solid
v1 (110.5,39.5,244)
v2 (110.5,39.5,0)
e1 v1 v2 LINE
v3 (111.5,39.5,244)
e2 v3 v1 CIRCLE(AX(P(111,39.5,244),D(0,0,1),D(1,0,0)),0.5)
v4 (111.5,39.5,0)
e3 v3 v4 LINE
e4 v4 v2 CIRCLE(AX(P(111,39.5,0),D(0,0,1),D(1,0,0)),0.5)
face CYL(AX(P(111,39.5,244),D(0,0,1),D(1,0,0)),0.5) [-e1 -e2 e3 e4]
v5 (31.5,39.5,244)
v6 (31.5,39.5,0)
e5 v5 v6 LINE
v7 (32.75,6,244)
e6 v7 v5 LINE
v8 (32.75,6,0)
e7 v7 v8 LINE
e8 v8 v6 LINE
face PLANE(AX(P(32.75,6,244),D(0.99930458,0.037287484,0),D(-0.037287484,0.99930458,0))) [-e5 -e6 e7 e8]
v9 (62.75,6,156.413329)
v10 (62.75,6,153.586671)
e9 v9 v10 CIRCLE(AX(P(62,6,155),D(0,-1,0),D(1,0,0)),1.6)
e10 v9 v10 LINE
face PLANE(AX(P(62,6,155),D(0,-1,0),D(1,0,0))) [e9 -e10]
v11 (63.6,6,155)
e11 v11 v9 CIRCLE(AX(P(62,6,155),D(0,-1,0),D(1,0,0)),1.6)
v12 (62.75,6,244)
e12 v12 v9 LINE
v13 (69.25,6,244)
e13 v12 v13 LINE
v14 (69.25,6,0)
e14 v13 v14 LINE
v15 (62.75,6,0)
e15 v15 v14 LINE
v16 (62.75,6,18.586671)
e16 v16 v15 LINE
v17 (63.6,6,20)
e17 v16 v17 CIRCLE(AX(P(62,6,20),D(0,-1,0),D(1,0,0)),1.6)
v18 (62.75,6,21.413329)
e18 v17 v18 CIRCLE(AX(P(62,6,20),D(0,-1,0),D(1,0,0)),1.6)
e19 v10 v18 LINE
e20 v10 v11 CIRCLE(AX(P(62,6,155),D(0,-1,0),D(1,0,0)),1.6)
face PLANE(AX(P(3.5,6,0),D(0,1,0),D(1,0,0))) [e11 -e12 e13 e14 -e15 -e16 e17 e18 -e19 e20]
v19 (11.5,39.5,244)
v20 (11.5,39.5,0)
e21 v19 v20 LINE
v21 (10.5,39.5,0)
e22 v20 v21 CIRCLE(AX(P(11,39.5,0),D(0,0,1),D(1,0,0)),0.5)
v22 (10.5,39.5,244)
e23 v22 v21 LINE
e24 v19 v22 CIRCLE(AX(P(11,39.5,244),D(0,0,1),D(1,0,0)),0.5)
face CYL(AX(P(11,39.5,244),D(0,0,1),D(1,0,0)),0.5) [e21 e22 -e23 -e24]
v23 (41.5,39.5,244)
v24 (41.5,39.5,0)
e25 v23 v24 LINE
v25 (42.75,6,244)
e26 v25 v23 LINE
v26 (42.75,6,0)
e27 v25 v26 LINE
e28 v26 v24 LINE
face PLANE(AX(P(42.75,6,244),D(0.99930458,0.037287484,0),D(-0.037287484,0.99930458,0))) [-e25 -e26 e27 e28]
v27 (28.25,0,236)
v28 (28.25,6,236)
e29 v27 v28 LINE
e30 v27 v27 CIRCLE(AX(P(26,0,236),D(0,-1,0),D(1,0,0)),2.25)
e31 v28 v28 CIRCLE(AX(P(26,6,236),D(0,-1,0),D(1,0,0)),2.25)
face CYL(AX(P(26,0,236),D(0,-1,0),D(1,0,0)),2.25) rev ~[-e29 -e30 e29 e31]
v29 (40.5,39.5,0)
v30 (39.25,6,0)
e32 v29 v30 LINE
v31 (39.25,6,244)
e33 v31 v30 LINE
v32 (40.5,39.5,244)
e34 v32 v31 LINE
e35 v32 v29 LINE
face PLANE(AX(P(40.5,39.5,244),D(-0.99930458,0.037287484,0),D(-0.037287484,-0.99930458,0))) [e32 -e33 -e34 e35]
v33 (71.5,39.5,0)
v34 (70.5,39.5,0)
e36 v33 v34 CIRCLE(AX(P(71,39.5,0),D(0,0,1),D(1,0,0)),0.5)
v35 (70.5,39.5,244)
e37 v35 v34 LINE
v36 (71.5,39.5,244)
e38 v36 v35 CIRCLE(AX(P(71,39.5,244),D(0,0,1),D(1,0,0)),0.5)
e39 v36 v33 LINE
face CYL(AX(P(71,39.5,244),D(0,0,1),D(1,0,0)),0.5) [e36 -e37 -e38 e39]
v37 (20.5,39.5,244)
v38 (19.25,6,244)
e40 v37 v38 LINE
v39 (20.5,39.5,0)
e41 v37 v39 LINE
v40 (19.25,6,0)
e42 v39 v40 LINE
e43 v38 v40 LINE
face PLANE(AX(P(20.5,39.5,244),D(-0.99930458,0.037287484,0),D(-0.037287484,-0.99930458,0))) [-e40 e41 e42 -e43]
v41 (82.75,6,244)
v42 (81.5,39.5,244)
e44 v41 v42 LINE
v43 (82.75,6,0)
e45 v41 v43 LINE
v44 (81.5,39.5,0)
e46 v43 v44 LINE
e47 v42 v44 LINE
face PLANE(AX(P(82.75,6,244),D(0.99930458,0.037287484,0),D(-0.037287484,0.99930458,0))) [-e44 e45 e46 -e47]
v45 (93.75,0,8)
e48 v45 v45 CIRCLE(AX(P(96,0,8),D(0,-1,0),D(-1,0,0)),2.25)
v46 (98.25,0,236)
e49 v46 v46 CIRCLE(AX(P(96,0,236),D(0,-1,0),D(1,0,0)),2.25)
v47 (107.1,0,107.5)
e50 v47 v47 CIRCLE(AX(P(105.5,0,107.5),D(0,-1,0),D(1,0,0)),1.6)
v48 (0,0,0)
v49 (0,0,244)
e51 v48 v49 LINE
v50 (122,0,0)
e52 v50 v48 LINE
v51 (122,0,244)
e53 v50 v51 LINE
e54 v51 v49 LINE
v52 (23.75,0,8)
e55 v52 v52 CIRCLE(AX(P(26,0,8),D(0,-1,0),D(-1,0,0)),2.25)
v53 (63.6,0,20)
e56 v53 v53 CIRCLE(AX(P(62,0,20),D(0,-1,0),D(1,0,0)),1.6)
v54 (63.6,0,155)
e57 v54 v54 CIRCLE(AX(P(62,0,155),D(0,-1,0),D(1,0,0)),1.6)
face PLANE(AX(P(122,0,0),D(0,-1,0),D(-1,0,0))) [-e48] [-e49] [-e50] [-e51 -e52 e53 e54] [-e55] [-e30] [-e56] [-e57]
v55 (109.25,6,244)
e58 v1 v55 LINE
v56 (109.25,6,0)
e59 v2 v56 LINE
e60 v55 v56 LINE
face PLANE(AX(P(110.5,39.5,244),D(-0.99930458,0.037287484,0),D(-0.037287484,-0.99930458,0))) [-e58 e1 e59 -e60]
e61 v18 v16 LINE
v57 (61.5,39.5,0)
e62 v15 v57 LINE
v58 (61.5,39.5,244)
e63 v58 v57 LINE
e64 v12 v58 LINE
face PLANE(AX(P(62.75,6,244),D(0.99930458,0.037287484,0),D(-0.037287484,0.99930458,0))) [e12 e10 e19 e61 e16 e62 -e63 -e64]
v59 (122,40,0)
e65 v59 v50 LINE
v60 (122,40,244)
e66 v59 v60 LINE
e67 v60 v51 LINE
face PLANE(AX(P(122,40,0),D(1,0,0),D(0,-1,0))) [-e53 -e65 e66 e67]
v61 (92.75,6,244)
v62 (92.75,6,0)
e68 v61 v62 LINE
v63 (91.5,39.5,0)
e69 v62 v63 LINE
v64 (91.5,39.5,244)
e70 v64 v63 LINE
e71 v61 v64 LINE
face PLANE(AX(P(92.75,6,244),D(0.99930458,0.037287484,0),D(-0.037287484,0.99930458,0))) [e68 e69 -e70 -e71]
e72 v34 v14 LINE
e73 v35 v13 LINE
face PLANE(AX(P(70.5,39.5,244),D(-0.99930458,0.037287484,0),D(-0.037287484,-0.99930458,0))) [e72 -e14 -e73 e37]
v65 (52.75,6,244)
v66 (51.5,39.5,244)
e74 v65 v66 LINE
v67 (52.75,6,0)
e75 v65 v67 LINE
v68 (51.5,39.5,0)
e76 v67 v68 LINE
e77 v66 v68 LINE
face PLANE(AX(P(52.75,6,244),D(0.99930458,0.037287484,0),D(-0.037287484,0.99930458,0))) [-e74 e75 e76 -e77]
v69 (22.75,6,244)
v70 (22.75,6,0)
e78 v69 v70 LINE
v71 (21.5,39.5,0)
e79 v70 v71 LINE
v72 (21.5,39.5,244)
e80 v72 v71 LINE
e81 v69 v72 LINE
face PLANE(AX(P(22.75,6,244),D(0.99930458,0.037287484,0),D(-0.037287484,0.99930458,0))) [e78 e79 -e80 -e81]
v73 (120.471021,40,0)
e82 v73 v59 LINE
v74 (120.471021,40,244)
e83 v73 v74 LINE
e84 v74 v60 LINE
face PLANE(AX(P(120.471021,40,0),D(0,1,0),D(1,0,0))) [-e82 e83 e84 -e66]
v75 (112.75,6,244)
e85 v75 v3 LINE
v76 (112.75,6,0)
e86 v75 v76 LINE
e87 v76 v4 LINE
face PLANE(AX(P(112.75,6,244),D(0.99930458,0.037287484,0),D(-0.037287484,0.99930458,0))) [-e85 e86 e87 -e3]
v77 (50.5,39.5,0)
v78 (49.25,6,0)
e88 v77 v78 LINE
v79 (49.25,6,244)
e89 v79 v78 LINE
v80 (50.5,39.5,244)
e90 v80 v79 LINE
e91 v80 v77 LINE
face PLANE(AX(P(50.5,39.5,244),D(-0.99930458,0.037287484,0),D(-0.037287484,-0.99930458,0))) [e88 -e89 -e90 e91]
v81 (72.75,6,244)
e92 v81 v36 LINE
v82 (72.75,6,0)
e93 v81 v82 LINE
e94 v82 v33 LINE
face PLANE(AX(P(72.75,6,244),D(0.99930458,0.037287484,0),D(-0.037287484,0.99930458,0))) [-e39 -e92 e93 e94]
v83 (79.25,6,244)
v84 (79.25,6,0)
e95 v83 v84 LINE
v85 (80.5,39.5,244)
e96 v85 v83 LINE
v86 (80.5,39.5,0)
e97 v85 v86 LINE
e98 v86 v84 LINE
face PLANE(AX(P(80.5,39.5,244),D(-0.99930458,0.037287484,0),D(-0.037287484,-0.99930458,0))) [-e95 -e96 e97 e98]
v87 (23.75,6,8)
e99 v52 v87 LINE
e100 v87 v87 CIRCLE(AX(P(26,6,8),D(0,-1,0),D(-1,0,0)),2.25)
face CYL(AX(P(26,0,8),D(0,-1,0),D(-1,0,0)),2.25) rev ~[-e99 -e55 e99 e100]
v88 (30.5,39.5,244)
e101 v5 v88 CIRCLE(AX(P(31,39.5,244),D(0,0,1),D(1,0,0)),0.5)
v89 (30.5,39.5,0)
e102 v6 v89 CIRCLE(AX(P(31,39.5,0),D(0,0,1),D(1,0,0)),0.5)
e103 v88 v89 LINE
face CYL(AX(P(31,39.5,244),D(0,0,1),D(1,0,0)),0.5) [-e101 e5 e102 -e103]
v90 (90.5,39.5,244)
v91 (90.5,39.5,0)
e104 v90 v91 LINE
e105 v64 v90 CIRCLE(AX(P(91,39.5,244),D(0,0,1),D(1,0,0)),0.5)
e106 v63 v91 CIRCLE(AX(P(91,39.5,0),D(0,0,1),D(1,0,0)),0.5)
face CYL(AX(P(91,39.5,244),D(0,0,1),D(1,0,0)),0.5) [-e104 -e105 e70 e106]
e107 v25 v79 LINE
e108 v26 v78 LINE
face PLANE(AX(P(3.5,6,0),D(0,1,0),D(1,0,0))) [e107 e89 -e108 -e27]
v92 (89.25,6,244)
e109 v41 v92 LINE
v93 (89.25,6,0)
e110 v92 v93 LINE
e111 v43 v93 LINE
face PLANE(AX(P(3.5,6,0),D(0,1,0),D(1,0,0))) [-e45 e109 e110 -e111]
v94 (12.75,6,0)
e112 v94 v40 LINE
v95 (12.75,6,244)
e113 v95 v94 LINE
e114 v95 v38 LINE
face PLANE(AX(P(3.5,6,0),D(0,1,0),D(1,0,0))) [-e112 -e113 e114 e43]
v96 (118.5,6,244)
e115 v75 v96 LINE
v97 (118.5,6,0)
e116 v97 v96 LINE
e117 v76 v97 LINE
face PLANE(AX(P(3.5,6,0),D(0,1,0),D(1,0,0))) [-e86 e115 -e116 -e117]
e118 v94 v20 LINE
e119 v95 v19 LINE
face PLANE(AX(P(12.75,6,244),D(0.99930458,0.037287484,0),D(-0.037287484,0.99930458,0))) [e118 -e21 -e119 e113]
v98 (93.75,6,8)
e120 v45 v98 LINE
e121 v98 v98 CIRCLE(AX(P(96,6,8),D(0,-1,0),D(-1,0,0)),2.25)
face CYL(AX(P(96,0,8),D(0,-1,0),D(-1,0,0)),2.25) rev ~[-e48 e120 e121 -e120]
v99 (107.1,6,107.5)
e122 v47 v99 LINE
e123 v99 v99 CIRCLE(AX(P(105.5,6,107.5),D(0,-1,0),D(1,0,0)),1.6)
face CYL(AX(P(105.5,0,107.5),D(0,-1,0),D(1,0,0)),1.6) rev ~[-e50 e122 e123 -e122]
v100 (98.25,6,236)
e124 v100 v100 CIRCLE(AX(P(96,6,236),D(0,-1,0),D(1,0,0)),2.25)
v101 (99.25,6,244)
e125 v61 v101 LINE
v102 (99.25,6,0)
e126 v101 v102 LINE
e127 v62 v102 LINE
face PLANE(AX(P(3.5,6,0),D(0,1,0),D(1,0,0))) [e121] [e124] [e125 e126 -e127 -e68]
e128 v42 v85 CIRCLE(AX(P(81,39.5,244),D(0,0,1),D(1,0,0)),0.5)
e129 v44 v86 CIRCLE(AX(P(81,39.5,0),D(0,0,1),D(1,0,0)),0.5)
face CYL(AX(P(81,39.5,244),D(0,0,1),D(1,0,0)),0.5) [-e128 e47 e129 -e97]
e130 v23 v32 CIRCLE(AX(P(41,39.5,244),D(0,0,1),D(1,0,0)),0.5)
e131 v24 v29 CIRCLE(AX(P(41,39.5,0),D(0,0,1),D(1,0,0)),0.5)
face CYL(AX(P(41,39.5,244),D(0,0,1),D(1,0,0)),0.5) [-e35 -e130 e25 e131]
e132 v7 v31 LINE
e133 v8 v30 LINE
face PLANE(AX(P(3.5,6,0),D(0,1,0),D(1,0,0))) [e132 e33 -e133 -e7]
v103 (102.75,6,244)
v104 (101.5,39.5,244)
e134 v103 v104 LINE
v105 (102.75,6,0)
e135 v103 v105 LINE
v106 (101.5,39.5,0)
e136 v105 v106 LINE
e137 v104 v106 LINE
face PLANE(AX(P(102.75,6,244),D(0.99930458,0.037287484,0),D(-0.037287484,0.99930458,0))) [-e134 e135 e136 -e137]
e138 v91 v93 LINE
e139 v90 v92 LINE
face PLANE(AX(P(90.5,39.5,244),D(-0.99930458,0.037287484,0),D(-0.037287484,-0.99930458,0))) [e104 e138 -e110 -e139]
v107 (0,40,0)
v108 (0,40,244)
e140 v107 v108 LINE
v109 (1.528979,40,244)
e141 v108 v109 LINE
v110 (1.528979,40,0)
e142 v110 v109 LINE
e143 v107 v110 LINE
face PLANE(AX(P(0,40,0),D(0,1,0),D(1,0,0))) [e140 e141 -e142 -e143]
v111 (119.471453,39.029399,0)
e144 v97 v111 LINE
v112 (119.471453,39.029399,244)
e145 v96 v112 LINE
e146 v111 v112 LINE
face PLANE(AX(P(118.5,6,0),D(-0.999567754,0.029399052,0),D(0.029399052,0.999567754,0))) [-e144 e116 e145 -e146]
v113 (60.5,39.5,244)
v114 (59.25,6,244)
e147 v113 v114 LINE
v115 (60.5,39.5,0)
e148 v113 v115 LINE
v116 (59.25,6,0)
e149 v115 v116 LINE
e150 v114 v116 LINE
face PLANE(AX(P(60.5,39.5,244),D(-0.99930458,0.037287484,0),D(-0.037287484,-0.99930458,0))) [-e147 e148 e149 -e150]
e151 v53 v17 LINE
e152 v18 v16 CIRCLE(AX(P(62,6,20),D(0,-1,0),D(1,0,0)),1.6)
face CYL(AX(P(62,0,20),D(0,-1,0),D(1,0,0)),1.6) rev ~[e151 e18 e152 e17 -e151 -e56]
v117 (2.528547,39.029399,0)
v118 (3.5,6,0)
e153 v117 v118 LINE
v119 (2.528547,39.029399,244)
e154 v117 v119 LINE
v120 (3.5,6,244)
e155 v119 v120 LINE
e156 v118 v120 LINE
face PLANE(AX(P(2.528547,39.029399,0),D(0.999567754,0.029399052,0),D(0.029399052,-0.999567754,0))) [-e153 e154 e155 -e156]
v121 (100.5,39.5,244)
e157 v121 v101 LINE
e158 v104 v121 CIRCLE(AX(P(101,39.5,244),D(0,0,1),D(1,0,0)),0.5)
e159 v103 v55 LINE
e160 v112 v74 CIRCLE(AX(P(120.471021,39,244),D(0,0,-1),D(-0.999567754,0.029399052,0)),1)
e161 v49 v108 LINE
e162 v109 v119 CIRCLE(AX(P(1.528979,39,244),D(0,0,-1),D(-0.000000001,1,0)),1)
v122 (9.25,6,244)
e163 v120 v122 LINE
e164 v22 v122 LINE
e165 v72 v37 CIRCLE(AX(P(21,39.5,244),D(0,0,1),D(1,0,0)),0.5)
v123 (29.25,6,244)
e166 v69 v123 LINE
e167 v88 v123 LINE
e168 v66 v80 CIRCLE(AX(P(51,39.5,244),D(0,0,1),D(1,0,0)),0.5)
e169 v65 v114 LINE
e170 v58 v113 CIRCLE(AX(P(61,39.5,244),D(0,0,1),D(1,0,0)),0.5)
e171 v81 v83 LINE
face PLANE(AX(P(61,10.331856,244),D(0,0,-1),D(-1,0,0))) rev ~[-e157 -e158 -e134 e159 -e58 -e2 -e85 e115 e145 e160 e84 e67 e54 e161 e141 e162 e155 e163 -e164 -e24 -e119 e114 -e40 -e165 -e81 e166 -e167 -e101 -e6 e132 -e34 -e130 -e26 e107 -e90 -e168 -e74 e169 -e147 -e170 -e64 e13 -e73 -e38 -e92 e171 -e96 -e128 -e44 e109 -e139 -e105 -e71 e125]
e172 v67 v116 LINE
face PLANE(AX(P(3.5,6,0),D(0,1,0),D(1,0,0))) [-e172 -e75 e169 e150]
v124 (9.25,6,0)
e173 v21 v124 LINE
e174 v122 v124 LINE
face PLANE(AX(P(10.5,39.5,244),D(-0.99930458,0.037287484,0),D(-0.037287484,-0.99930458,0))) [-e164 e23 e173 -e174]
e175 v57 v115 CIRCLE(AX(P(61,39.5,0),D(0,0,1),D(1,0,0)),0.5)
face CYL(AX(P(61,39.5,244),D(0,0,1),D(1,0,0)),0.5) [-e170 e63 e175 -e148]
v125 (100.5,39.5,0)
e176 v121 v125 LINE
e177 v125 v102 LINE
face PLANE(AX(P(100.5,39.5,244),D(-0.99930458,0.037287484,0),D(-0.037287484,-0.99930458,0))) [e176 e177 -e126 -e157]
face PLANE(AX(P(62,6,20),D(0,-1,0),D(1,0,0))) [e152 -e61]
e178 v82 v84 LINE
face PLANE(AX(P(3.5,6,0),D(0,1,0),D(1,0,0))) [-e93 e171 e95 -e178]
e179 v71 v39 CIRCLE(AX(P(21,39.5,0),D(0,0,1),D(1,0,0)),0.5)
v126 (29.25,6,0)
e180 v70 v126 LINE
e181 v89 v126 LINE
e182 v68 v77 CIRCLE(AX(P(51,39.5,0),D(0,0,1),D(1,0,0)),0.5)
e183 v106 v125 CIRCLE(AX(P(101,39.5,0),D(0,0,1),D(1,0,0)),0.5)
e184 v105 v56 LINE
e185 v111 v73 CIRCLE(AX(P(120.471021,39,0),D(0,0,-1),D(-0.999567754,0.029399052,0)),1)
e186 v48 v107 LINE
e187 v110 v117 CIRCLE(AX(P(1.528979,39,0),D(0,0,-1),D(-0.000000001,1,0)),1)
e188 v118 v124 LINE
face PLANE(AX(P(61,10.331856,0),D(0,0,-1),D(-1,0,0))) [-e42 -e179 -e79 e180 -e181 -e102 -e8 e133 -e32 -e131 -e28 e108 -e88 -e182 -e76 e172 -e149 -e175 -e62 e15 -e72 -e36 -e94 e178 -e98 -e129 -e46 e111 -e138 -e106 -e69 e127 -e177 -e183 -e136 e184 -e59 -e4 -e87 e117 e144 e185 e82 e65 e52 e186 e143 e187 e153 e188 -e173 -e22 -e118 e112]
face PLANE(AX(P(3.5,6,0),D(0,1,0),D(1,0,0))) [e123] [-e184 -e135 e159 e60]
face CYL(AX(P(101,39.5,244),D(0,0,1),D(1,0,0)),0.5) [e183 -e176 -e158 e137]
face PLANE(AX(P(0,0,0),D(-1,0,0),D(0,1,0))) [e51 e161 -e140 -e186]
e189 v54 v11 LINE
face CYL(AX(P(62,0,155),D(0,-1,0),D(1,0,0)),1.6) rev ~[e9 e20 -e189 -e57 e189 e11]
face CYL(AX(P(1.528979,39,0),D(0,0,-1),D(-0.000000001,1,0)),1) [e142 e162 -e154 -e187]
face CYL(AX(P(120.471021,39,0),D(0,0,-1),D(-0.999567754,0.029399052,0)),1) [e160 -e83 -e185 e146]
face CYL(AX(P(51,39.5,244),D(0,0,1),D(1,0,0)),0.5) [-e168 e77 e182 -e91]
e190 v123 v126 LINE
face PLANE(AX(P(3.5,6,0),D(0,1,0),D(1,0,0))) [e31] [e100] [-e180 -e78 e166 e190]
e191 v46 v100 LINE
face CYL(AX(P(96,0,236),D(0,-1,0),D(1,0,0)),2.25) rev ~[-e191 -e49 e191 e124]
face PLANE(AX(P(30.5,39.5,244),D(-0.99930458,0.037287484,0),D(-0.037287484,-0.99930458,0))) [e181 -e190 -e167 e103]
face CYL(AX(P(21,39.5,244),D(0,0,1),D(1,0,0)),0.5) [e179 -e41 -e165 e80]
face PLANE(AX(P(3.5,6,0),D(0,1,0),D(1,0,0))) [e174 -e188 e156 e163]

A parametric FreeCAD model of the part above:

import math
import FreeCAD as App
import Part
import Sketcher
Q = App.Units.Quantity

doc = App.newDocument("Part")
body = doc.addObject("PartDesign::Body", "Body")

# Sketch on XY plane
sketch1 = body.newObject("Sketcher::SketchObject", "Sketch")
sketch1.AttachmentSupport = (doc.getObject("XY_Plane"), [""])
sketch1.MapMode = "FlatFace"
sketch1.addGeometry(Part.LineSegment(App.Vector(1.5, 40, 0), App.Vector(0, 40, 0)), False)
sketch1.addGeometry(Part.LineSegment(App.Vector(0, 40, 0), App.Vector(0, 0, 0)), False)
sketch1.addGeometry(Part.LineSegment(App.Vector(0, 0, 0), App.Vector(122, 0, 0)), False)
sketch1.addGeometry(Part.LineSegment(App.Vector(122, 0, 0), App.Vector(122, 40, 0)), False)
sketch1.addGeometry(Part.LineSegment(App.Vector(122, 40, 0), App.Vector(120.5, 40, 0)), False)
sketch1.addGeometry(Part.ArcOfCircle(Part.Circle(App.Vector(120.5, 39, 0), App.Vector(0, 0, 1), 1), math.radians(90), math.radians(178)), False)
sketch1.addGeometry(Part.LineSegment(App.Vector(119.5, 39, 0), App.Vector(118.5, 6, 0)), False)
sketch1.addGeometry(Part.LineSegment(App.Vector(118.5, 6, 0), App.Vector(3.5, 6, 0)), False)
sketch1.addGeometry(Part.LineSegment(App.Vector(3.5, 6, 0), App.Vector(2.5, 39, 0)), False)
sketch1.addGeometry(Part.ArcOfCircle(Part.Circle(App.Vector(1.5, 39, 0), App.Vector(0, 0, 1), 1), math.radians(2), math.radians(90)), False)
sketch1.addConstraint(Sketcher.Constraint("Coincident", 0, 2, 1, 1))
sketch1.addConstraint(Sketcher.Constraint("Coincident", 1, 2, 2, 1))
sketch1.addConstraint(Sketcher.Constraint("Coincident", 2, 2, 3, 1))
sketch1.addConstraint(Sketcher.Constraint("Coincident", 3, 2, 4, 1))
sketch1.addConstraint(Sketcher.Constraint("Tangent", 4, 2, 5, 1))
sketch1.addConstraint(Sketcher.Constraint("Tangent", 5, 2, 6, 1))
sketch1.addConstraint(Sketcher.Constraint("Coincident", 6, 2, 7, 1))
sketch1.addConstraint(Sketcher.Constraint("Coincident", 7, 2, 8, 1))
sketch1.addConstraint(Sketcher.Constraint("Tangent", 8, 2, 9, 1))
sketch1.addConstraint(Sketcher.Constraint("Tangent", 9, 2, 0, 1))
sketch1.addConstraint(Sketcher.Constraint("Horizontal", 0))
sketch1.addConstraint(Sketcher.Constraint("Vertical", 1))
sketch1.addConstraint(Sketcher.Constraint("Horizontal", 2))
sketch1.addConstraint(Sketcher.Constraint("Vertical", 3))
sketch1.addConstraint(Sketcher.Constraint("Horizontal", 4))
sketch1.addConstraint(Sketcher.Constraint("Horizontal", 7))
sketch1.addConstraint(Sketcher.Constraint("Coincident", 1, 2, -1, 1))
sketch1.addConstraint(Sketcher.Constraint("Equal", 5, 9))
sketch1.addConstraint(Sketcher.Constraint("Horizontal", 5, 3, 9, 3))
sketch1.addConstraint(Sketcher.Constraint("Horizontal", 5, 2, 8, 2))
sketch1.addConstraint(Sketcher.Constraint("Equal", 0, 4))
sketch1.addConstraint(Sketcher.Constraint("Radius", 5, Q("1 mm")))
sketch1.addConstraint(Sketcher.Constraint("DistanceX", 2, 1, 2, 2, Q("122 mm")))
sketch1.addConstraint(Sketcher.Constraint("DistanceX", 7, 2, 7, 1, Q("115 mm")))
sketch1.addConstraint(Sketcher.Constraint("DistanceY", 1, 2, 1, 1, Q("40 mm")))
sketch1.addConstraint(Sketcher.Constraint("DistanceY", -1, 1, 6, 2, Q("6 mm")))
sketch1.addConstraint(Sketcher.Constraint("DistanceX", 0, 2, 0, 1, Q("1.528979 mm")))
pad1 = body.newObject("PartDesign::Pad", "Pad")
pad1.Profile = sketch1
pad1.Length = 244

# Sketch on XY plane
sketch2 = body.newObject("Sketcher::SketchObject", "Sketch001")
sketch2.AttachmentSupport = (doc.getObject("XY_Plane"), [""])
sketch2.MapMode = "FlatFace"
sketch2.AttachmentOffset = App.Placement(App.Vector(0, 0, 244), App.Rotation())
sketch2.addGeometry(Part.LineSegment(App.Vector(10.5, 39.5, 0), App.Vector(9.2, 6, 0)), False)
sketch2.addGeometry(Part.LineSegment(App.Vector(9.2, 6, 0), App.Vector(12.8, 6, 0)), False)
sketch2.addGeometry(Part.LineSegment(App.Vector(12.8, 6, 0), App.Vector(11.5, 39.5, 0)), False)
sketch2.addGeometry(Part.ArcOfCircle(Part.Circle(App.Vector(11, 39.5, 0), App.Vector(0, 0, 1), 0.5), math.radians(0), math.radians(180)), False)
sketch2.addConstraint(Sketcher.Constraint("Coincident", 0, 2, 1, 1))
sketch2.addConstraint(Sketcher.Constraint("Coincident", 1, 2, 2, 1))
sketch2.addConstraint(Sketcher.Constraint("Coincident", 2, 2, 3, 1))
sketch2.addConstraint(Sketcher.Constraint("Coincident", 3, 2, 0, 1))
sketch2.addConstraint(Sketcher.Constraint("Horizontal", 1))
sketch2.addConstraint(Sketcher.Constraint("Horizontal", 3, 3, 2, 2))
sketch2.addConstraint(Sketcher.Constraint("Horizontal", 2, 2, 3, 2))
sketch2.addConstraint(Sketcher.Constraint("Equal", 0, 2))
sketch2.addConstraint(Sketcher.Constraint("Radius", 3, Q("0.5 mm")))
sketch2.addConstraint(Sketcher.Constraint("DistanceX", 1, 1, 1, 2, Q("3.5 mm")))
sketch2.addConstraint(Sketcher.Constraint("DistanceX", -1, 1, 3, 3, Q("11 mm")))
sketch2.addConstraint(Sketcher.Constraint("DistanceY", -1, 1, 0, 2, Q("6 mm")))
sketch2.addConstraint(Sketcher.Constraint("DistanceY", -1, 1, 3, 3, Q("39.5 mm")))
pad2 = body.newObject("PartDesign::Pad", "Pad001")
pad2.Profile = sketch2
pad2.Length = 244
pad2.Reversed = True
doc.recompute()

linearpattern = body.newObject("PartDesign::LinearPattern", "LinearPattern")
linearpattern.Originals = [pad2]
linearpattern.Direction = (doc.getObject("X_Axis"), [""])
linearpattern.Mode = "offset"
linearpattern.Offset = 10
linearpattern.Occurrences = 11
body.Tip = linearpattern

# Sketch on XZ plane
sketch3 = body.newObject("Sketcher::SketchObject", "Sketch002")
sketch3.AttachmentSupport = (doc.getObject("XZ_Plane"), [""])
sketch3.MapMode = "FlatFace"
sketch3.addGeometry(Part.Circle(App.Vector(26, 236, 0), App.Vector(0, 0, 1), 2.2), False)
sketch3.addGeometry(Part.Circle(App.Vector(96, 236, 0), App.Vector(0, 0, 1), 2.2), False)
sketch3.addGeometry(Part.Circle(App.Vector(96, 8, 0), App.Vector(0, 0, 1), 2.2), False)
sketch3.addGeometry(Part.Circle(App.Vector(26, 8, 0), App.Vector(0, 0, 1), 2.2), False)
sketch3.addConstraint(Sketcher.Constraint("Equal", 0, 1))
sketch3.addConstraint(Sketcher.Constraint("Equal", 1, 2))
sketch3.addConstraint(Sketcher.Constraint("Equal", 2, 3))
sketch3.addConstraint(Sketcher.Constraint("Horizontal", 0, 3, 1, 3))
sketch3.addConstraint(Sketcher.Constraint("Horizontal", 2, 3, 3, 3))
sketch3.addConstraint(Sketcher.Constraint("Vertical", 1, 3, 2, 3))
sketch3.addConstraint(Sketcher.Constraint("Vertical", 0, 3, 3, 3))
sketch3.addConstraint(Sketcher.Constraint("Diameter", 0, Q("4.5 mm")))
sketch3.addConstraint(Sketcher.Constraint("DistanceX", -1, 1, 0, 3, Q("26 mm")))
sketch3.addConstraint(Sketcher.Constraint("DistanceY", -1, 1, 0, 3, Q("236 mm")))
sketch3.addConstraint(Sketcher.Constraint("DistanceX", -1, 1, 1, 3, Q("96 mm")))
sketch3.addConstraint(Sketcher.Constraint("DistanceY", -1, 1, 2, 3, Q("8 mm")))
pocket1 = body.newObject("PartDesign::Pocket", "Pocket")
pocket1.Profile = sketch3
pocket1.Length = 6

# Sketch on XZ plane
sketch4 = body.newObject("Sketcher::SketchObject", "Sketch003")
sketch4.AttachmentSupport = (doc.getObject("XZ_Plane"), [""])
sketch4.MapMode = "FlatFace"
sketch4.addGeometry(Part.Circle(App.Vector(105.5, 107.5, 0), App.Vector(0, 0, 1), 1.6), False)
sketch4.addGeometry(Part.Circle(App.Vector(62, 20, 0), App.Vector(0, 0, 1), 1.6), False)
sketch4.addGeometry(Part.Circle(App.Vector(62, 155, 0), App.Vector(0, 0, 1), 1.6), False)
sketch4.addConstraint(Sketcher.Constraint("Equal", 0, 1))
sketch4.addConstraint(Sketcher.Constraint("Equal", 1, 2))
sketch4.addConstraint(Sketcher.Constraint("Vertical", 1, 3, 2, 3))
sketch4.addConstraint(Sketcher.Constraint("Diameter", 0, Q("3.2 mm")))
sketch4.addConstraint(Sketcher.Constraint("DistanceX", -1, 1, 1, 3, Q("62 mm")))
sketch4.addConstraint(Sketcher.Constraint("DistanceY", -1, 1, 1, 3, Q("20 mm")))
sketch4.addConstraint(Sketcher.Constraint("DistanceY", -1, 1, 2, 3, Q("155 mm")))
sketch4.addConstraint(Sketcher.Constraint("DistanceX", -1, 1, 0, 3, Q("105.5 mm")))
sketch4.addConstraint(Sketcher.Constraint("DistanceY", -1, 1, 0, 3, Q("107.5 mm")))
pocket2 = body.newObject("PartDesign::Pocket", "Pocket001")
pocket2.Profile = sketch4
pocket2.Length = 6

doc.recompute()
